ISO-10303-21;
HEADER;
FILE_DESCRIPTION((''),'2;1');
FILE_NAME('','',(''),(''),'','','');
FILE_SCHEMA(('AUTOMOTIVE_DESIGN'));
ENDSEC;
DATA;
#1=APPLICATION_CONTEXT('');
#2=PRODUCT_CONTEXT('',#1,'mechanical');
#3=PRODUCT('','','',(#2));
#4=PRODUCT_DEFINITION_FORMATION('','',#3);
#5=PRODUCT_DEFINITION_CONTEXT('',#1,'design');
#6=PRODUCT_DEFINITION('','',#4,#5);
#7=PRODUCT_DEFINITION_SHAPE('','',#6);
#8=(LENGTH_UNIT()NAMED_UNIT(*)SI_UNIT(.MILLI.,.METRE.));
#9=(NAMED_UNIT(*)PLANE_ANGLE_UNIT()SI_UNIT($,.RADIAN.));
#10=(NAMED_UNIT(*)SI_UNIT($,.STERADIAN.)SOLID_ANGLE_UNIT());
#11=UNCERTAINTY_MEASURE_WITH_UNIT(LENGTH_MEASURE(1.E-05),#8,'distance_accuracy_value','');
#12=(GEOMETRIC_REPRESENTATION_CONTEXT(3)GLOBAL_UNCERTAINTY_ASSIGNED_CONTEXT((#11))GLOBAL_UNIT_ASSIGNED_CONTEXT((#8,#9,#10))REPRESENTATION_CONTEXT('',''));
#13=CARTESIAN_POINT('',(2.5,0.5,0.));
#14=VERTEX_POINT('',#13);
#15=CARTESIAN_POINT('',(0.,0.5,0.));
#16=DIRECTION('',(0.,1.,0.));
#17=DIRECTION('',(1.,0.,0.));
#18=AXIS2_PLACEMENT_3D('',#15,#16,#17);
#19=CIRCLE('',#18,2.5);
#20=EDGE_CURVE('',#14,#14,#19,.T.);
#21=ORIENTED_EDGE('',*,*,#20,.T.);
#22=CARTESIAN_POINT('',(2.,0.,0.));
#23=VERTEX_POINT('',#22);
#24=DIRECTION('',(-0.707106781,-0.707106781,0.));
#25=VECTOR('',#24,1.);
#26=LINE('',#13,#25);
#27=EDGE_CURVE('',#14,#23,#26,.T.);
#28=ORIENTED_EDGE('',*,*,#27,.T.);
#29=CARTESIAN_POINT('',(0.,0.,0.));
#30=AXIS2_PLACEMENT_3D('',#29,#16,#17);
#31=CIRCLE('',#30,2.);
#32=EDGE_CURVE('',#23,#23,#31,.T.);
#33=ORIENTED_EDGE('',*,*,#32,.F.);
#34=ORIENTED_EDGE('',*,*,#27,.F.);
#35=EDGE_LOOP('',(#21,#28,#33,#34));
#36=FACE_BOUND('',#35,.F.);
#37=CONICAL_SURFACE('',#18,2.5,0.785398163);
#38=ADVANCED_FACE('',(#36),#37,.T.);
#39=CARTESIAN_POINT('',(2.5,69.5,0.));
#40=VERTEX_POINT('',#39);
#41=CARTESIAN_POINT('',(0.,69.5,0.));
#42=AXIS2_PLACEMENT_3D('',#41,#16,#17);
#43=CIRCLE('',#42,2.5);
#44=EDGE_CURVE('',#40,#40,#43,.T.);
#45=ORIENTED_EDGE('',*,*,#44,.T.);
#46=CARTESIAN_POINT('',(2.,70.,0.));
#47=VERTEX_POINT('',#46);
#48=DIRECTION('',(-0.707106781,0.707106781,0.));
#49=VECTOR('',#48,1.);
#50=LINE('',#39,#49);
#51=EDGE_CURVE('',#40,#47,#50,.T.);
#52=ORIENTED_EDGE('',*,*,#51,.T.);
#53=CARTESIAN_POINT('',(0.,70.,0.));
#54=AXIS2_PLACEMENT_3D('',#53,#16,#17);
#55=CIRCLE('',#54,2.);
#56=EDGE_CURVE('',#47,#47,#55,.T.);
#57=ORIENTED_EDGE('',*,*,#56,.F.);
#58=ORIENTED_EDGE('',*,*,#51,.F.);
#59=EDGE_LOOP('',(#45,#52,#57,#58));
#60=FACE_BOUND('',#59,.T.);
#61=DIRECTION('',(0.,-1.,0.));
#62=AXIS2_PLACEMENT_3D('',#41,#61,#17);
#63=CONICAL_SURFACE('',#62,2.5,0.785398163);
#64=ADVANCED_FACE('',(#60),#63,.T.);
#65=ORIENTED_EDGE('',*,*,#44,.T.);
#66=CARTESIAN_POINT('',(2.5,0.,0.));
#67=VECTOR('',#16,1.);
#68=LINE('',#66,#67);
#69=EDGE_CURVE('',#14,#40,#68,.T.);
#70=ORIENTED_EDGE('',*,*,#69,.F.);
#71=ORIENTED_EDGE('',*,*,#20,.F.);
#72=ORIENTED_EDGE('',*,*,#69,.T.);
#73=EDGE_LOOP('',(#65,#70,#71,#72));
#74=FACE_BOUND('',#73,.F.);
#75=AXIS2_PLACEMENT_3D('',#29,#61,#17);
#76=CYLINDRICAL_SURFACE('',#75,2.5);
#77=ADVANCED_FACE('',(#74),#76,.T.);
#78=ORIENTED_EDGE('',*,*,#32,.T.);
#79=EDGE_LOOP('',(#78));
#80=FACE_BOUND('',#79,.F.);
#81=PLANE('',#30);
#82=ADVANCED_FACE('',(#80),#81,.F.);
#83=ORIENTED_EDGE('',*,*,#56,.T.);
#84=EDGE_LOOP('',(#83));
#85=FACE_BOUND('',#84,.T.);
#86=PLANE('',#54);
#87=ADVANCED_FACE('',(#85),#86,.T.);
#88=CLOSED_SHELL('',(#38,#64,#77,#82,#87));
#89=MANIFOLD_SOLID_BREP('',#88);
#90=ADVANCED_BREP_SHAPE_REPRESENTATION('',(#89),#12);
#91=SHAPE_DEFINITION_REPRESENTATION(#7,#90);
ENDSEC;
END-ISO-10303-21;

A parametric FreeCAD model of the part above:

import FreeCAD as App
import Part
import Sketcher


def edges_at(feature, points):
    """Names of the edges that pass closest to the given points."""
    edges = feature.Shape.Edges
    near = lambda p: min(range(len(edges)), key=lambda i: edges[i].distToShape(Part.Vertex(*p))[0])
    return sorted({f"Edge{near(p) + 1}" for p in points})

doc = App.newDocument("Part")
params = doc.addObject("Spreadsheet::Sheet", "Params")
for row, (alias, value) in enumerate([
    ("sketch1_diameter", "5 mm"),
    ("pad1_length", "70 mm"),
    ("chamfer_size", "0.5 mm"),
], start=1):
    params.set(f"A{row}", alias)
    params.set(f"B{row}", "=" + value)
    params.setAlias(f"B{row}", alias)

body = doc.addObject("PartDesign::Body", "Body")

sketch1 = body.newObject("Sketcher::SketchObject", "Sketch")
sketch1.AttachmentSupport = (doc.getObject("XZ_Plane"), [""])
sketch1.MapMode = "FlatFace"
sketch1.addGeometry(Part.Circle(App.Vector(0, 0, 0), App.Vector(0, 0, 1), 2.5), False)
sketch1.addConstraint(Sketcher.Constraint("Coincident", 0, 3, -1, 1))
sketch1.addConstraint(Sketcher.Constraint("Diameter", 0, 5.0))
sketch1.setExpression("Constraints[1]", "Params.sketch1_diameter")
pad1 = body.newObject("PartDesign::Pad", "Pad")
pad1.Profile = sketch1
pad1.setExpression("Length", "Params.pad1_length")
pad1.Reversed = True
doc.recompute()

chamfer = body.newObject("PartDesign::Chamfer", "Chamfer")
chamfer.Base = (pad1, edges_at(pad1, [(-2.5, 0, 0), (-2.5, 70, 0)]))
chamfer.setExpression("Size", "Params.chamfer_size")

doc.recompute()
